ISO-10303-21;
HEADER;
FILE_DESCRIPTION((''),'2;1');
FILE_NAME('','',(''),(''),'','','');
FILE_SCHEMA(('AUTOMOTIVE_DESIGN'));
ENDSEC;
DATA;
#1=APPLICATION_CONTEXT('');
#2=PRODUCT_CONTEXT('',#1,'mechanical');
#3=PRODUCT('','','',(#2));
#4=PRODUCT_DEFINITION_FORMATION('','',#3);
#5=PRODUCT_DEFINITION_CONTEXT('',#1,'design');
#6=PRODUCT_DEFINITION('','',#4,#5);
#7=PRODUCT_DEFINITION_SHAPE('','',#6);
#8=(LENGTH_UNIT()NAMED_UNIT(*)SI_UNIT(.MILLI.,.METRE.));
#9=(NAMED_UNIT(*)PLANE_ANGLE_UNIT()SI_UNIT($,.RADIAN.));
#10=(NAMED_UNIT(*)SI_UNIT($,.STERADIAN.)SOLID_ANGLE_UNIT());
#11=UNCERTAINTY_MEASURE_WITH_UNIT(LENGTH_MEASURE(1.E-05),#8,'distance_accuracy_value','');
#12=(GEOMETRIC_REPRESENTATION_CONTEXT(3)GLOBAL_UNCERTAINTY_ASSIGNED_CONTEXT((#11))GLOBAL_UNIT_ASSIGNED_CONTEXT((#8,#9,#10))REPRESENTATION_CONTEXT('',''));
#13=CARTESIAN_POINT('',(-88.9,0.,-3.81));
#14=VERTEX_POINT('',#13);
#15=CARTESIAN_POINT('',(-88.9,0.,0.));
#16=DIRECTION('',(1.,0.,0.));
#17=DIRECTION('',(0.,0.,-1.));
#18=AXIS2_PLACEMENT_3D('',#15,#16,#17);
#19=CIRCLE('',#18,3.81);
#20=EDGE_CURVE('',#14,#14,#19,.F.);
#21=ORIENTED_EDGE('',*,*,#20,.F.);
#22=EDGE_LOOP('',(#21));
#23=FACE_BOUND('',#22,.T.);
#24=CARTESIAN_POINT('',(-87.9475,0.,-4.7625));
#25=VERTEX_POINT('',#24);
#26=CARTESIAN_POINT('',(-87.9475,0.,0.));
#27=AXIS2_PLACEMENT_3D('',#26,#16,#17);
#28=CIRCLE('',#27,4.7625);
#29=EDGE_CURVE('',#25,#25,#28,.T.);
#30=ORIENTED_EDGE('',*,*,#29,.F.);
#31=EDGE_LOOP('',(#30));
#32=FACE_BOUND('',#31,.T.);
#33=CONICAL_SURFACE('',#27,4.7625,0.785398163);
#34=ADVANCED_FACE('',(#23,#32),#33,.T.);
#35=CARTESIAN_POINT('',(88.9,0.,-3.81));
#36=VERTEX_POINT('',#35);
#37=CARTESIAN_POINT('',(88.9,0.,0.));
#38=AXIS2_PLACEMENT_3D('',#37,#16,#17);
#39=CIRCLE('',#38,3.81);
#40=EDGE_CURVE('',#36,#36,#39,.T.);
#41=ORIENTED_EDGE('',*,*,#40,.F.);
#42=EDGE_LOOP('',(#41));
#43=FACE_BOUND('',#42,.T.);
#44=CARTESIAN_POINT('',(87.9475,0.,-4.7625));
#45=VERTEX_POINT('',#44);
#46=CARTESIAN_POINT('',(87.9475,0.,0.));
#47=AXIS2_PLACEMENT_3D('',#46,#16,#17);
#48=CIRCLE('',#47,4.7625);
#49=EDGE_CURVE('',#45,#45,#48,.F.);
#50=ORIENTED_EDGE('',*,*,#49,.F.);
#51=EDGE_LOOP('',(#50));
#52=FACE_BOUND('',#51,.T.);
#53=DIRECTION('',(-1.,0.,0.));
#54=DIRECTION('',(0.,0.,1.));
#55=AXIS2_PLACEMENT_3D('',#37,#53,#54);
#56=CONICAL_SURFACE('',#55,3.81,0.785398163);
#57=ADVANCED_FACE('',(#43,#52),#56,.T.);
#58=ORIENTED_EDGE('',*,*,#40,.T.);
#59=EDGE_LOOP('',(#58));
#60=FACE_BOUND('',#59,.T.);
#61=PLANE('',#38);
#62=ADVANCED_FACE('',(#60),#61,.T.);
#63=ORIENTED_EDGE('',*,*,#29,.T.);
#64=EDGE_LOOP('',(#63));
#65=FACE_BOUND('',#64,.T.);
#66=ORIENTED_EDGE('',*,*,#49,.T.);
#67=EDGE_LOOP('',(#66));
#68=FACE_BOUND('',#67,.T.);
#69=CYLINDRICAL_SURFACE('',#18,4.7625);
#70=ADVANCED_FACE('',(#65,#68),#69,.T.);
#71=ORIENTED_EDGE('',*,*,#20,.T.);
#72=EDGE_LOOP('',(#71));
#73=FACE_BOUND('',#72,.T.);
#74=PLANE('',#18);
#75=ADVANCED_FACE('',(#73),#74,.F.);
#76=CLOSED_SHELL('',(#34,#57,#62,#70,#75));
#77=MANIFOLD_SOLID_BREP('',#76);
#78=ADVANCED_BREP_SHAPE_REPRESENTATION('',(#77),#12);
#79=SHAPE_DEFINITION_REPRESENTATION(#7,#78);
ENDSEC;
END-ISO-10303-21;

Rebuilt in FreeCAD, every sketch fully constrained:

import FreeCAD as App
import Part
import Sketcher
Q = App.Units.Quantity


def edges_at(feature, points):
    """Names of the edges that pass closest to the given points."""
    edges = feature.Shape.Edges
    near = lambda p: min(range(len(edges)), key=lambda i: edges[i].distToShape(Part.Vertex(*p))[0])
    return sorted({f"Edge{near(p) + 1}" for p in points})

doc = App.newDocument("Part")
params = doc.addObject("Spreadsheet::Sheet", "Params")
for row, (alias, value) in enumerate([
    ("sketch1_diameter", "0.375 in"),
    ("pad1_length", "3.5 in"),
    ("pad1_length2", "3.5 in"),
    ("chamfer_size", "0.0375 in"),
], start=1):
    params.set(f"A{row}", alias)
    params.set(f"B{row}", "=" + value)
    params.setAlias(f"B{row}", alias)

body = doc.addObject("PartDesign::Body", "Body")

sketch1 = doc.addObject("Sketcher::SketchObject", "Sketch")
body.addObject(sketch1)
sketch1.AttachmentSupport = (doc.YZ_Plane, [""])
sketch1.MapMode = "FlatFace"
sketch1.addGeometry(Part.Circle(App.Vector(0, 0, 0), App.Vector(0, 0, 1), 4.8), False)
sketch1.addConstraint(Sketcher.Constraint("Coincident", 0, 3, -1, 1))
sketch1.addConstraint(Sketcher.Constraint("Diameter", 0, Q("0.375 in")))
sketch1.setExpression("Constraints[1]", "Params.sketch1_diameter")
pad1 = doc.addObject("PartDesign::Pad", "Pad")
body.addObject(pad1)
pad1.Profile = sketch1
pad1.Type = "TwoLengths"
pad1.setExpression("Length", "Params.pad1_length")
pad1.setExpression("Length2", "Params.pad1_length2")
doc.recompute()

chamfer = doc.addObject("PartDesign::Chamfer", "Chamfer")
body.addObject(chamfer)
chamfer.Base = (pad1, edges_at(pad1, [(-88.9, 0, 4.763), (88.9, 0, 4.763)]))
chamfer.setExpression("Size", "Params.chamfer_size")

doc.recompute()
